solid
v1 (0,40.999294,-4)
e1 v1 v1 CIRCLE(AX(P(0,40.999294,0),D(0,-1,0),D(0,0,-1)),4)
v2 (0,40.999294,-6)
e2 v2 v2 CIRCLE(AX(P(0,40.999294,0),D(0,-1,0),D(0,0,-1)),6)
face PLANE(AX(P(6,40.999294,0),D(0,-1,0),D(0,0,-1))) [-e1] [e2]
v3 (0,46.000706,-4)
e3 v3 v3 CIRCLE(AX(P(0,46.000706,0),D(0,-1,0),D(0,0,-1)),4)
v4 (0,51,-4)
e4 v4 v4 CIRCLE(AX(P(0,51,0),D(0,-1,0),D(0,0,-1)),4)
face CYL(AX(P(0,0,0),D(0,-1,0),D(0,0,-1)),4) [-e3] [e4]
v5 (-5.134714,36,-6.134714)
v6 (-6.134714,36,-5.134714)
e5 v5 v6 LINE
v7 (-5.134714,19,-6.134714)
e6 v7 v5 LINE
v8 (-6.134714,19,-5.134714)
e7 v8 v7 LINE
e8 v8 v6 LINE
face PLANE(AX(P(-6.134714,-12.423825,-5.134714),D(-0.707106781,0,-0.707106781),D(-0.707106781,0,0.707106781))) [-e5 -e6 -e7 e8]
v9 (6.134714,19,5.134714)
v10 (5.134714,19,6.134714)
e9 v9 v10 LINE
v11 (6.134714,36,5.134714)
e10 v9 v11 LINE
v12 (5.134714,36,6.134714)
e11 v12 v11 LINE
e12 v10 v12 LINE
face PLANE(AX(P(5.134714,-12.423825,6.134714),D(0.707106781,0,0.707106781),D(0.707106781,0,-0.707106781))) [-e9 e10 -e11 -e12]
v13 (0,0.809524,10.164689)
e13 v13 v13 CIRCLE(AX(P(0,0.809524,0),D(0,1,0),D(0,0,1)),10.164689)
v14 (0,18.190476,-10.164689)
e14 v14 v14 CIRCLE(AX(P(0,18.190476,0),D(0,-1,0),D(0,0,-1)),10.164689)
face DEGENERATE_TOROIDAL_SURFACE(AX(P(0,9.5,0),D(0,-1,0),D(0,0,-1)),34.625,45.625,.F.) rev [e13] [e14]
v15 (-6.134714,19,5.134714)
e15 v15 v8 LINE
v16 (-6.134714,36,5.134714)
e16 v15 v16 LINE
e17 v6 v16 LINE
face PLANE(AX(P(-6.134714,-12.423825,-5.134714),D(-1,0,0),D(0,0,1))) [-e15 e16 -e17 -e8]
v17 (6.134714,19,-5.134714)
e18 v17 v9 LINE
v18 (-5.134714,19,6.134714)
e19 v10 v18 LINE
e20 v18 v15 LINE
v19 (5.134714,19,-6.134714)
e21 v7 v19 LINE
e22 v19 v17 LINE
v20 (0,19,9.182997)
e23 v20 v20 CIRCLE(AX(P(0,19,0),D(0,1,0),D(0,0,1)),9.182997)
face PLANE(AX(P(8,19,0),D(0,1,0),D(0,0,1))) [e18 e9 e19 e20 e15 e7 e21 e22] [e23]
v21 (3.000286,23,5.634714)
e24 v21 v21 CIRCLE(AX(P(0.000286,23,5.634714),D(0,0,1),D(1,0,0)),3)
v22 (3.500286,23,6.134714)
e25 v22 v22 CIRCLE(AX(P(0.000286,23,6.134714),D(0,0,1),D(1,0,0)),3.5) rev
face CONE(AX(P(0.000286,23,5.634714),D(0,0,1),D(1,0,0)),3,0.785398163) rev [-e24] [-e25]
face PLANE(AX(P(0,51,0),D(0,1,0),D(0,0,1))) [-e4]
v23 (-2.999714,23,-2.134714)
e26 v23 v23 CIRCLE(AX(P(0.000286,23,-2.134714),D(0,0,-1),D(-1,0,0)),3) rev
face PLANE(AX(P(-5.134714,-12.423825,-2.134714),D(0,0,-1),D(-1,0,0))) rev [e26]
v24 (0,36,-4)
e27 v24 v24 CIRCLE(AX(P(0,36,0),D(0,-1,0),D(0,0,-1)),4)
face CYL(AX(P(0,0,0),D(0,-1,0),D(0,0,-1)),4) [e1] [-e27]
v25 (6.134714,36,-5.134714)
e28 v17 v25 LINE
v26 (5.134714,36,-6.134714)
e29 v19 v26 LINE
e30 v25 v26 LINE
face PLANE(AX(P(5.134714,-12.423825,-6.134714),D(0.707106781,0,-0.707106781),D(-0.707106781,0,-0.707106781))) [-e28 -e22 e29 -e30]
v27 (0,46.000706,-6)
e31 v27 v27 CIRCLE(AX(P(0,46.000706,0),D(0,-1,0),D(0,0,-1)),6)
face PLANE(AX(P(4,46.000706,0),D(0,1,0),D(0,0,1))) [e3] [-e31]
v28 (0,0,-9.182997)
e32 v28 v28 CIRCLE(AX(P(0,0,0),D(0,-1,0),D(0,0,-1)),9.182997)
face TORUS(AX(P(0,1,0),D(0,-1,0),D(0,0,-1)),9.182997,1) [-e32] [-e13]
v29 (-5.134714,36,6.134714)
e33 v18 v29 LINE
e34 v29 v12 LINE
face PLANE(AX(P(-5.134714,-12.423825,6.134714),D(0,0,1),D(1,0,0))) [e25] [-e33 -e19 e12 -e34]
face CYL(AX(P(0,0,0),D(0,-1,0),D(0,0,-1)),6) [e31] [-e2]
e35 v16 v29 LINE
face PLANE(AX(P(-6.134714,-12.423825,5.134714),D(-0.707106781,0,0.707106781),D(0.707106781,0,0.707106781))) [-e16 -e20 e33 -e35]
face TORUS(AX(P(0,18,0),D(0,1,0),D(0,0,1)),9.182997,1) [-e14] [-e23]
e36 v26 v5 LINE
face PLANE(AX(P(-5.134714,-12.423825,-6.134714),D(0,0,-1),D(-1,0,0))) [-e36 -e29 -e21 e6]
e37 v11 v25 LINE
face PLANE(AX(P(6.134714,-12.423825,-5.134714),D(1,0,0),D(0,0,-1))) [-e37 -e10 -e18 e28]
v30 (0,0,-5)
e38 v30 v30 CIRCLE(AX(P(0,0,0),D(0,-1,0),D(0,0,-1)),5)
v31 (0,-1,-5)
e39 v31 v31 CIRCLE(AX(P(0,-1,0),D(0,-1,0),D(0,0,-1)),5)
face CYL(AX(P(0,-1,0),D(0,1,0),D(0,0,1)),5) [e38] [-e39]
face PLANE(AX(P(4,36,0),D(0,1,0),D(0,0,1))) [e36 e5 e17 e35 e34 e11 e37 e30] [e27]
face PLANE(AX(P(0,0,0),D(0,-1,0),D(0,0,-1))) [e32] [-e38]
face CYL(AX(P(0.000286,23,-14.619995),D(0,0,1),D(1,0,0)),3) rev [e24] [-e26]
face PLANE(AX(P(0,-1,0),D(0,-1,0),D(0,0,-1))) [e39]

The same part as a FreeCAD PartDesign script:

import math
import FreeCAD as App
import Part
import Sketcher
from FreeCAD import Vector


def edges_at(feature, points):
    """Names of the edges that pass closest to the given points."""
    edges = feature.Shape.Edges
    near = lambda p: min(range(len(edges)), key=lambda i: edges[i].distToShape(Part.Vertex(*p))[0])
    return sorted({f"Edge{near(p) + 1}" for p in points})


def add_polygon(sketch, points):
    """Adds a closed chain of lines whose ends are joined by coincident constraints."""
    first, n = sketch.GeometryCount, len(points)
    for a, b in zip(points, points[1:] + points[:1]):
        sketch.addGeometry(Part.LineSegment(App.Vector(*a, 0), App.Vector(*b, 0)), False)
    for i in range(n):
        sketch.addConstraint(Sketcher.Constraint("Coincident", first + i, 2, first + (i + 1) % n, 1))

doc = App.newDocument("Part")
body = doc.addObject("PartDesign::Body", "Body")

# Sketch on XY plane
sketch1 = body.newObject("Sketcher::SketchObject", "Sketch")
sketch1.AttachmentSupport = (doc.getObject("XY_Plane"), [""])
sketch1.MapMode = "FlatFace"
sketch1.addGeometry([
    Part.LineSegment(Vector(0, 51, 0), Vector(0, 0, 0)),  # 0
    Part.LineSegment(Vector(0, 0, 0), Vector(10, 0, 0)),  # 1
    Part.ArcOfCircle(Part.Circle(Vector(-34.6, 9.5, 0), Vector(0, 0, 1), 45.6), math.radians(-12), math.radians(12)),  # 2
    Part.LineSegment(Vector(10, 19, 0), Vector(8, 19, 0)),  # 3
    Part.LineSegment(Vector(8, 19, 0), Vector(8, 36, 0)),  # 4
    Part.LineSegment(Vector(8, 36, 0), Vector(4, 36, 0)),  # 5
    Part.LineSegment(Vector(4, 36, 0), Vector(4, 41, 0)),  # 6
    Part.LineSegment(Vector(4, 41, 0), Vector(6, 41, 0)),  # 7
    Part.LineSegment(Vector(6, 41, 0), Vector(6, 46, 0)),  # 8
    Part.LineSegment(Vector(6, 46, 0), Vector(4, 46, 0)),  # 9
    Part.LineSegment(Vector(4, 46, 0), Vector(4, 51, 0)),  # 10
    Part.LineSegment(Vector(4, 51, 0), Vector(0, 51, 0)),  # 11
], False)
sketch1.addConstraint([
    Sketcher.Constraint("Coincident", 0, 2, 1, 1),
    Sketcher.Constraint("Coincident", 1, 2, 2, 1),
    Sketcher.Constraint("Coincident", 2, 2, 3, 1),
    Sketcher.Constraint("Coincident", 3, 2, 4, 1),
    Sketcher.Constraint("Coincident", 4, 2, 5, 1),
    Sketcher.Constraint("Coincident", 5, 2, 6, 1),
    Sketcher.Constraint("Coincident", 6, 2, 7, 1),
    Sketcher.Constraint("Coincident", 7, 2, 8, 1),
    Sketcher.Constraint("Coincident", 8, 2, 9, 1),
    Sketcher.Constraint("Coincident", 9, 2, 10, 1),
    Sketcher.Constraint("Coincident", 10, 2, 11, 1),
    Sketcher.Constraint("Coincident", 11, 2, 0, 1),
    Sketcher.Constraint("Vertical", 0),
    Sketcher.Constraint("Horizontal", 1),
    Sketcher.Constraint("Horizontal", 3),
    Sketcher.Constraint("Vertical", 4),
    Sketcher.Constraint("Horizontal", 5),
    Sketcher.Constraint("Vertical", 6),
    Sketcher.Constraint("Horizontal", 7),
    Sketcher.Constraint("Vertical", 8),
    Sketcher.Constraint("Horizontal", 9),
    Sketcher.Constraint("Vertical", 10),
    Sketcher.Constraint("Horizontal", 11),
    Sketcher.Constraint("Coincident", 0, 2, -1, 1),
    Sketcher.Constraint("Vertical", 1, 2, 2, 2),
    Sketcher.Constraint("Vertical", 6, 2, 9, 2),
    Sketcher.Constraint("Equal", 3, 7),
    Sketcher.Constraint("Equal", 5, 11),
    Sketcher.Constraint("Equal", 6, 10),
    Sketcher.Constraint("DistanceX", 1, 1, 1, 2, 10.0),
    Sketcher.Constraint("DistanceX", 3, 2, 3, 1, 2.0),
    Sketcher.Constraint("DistanceY", 0, 2, 0, 1, 51.0),
    Sketcher.Constraint("DistanceY", 4, 1, 4, 2, 17.0),
    Sketcher.Constraint("DistanceY", -1, 1, 2, 2, 19.0),
    Sketcher.Constraint("Radius", 2, 45.625),
    Sketcher.Constraint("DistanceY", 6, 1, 6, 2, 4.999294),
])
revolution = body.newObject("PartDesign::Revolution", "Revolution")
revolution.Profile = sketch1
revolution.ReferenceAxis = (sketch1, ["V_Axis"])
revolution.Angle = 360

# Sketch on XZ plane
sketch2 = body.newObject("Sketcher::SketchObject", "Sketch001")
sketch2.AttachmentSupport = (doc.getObject("XZ_Plane"), [""])
sketch2.MapMode = "FlatFace"
sketch2.AttachmentOffset = App.Placement(Vector(0, 0, -36), App.Rotation())
add_polygon(sketch2, [(-18, -18), (-18, 18), (18, 18), (18, -18)])  # lines 0-3
add_polygon(sketch2, [(-6.1, 5.1), (-6.1, -5.1), (-5.1, -6.1), (5.1, -6.1), (6.1, -5.1), (6.1, 5.1), (5.1, 6.1), (-5.1, 6.1)])  # lines 4-11
sketch2.addConstraint([
    Sketcher.Constraint("Vertical", 0),
    Sketcher.Constraint("Horizontal", 1),
    Sketcher.Constraint("Vertical", 2),
    Sketcher.Constraint("Horizontal", 3),
    Sketcher.Constraint("Vertical", 4),
    Sketcher.Constraint("Horizontal", 6),
    Sketcher.Constraint("Vertical", 8),
    Sketcher.Constraint("Horizontal", 10),
    Sketcher.Constraint("Symmetric", 0, 2, 2, 2, -1, 1),
    Sketcher.Constraint("Symmetric", 4, 2, 8, 2, -1, 1),
    Sketcher.Constraint("Symmetric", 5, 2, 9, 2, -1, 1),
    Sketcher.Constraint("Perpendicular", 5, 7),
    Sketcher.Constraint("Perpendicular", 9, 11),
    Sketcher.Constraint("Horizontal", 4, 2, 7, 2),
    Sketcher.Constraint("Horizontal", 8, 2, 11, 2),
    Sketcher.Constraint("Vertical", 6, 2, 9, 2),
    Sketcher.Constraint("Equal", 3, 0),
    Sketcher.Constraint("Equal", 10, 4),
    Sketcher.Constraint("DistanceX", 4, 2, 5, 2, 1.0),
    Sketcher.Constraint("DistanceX", 1, 1, 1, 2, 35.948),
    Sketcher.Constraint("DistanceX", 6, 1, 6, 2, 10.269428),
])
pocket1 = body.newObject("PartDesign::Pocket", "Pocket")
pocket1.Profile = sketch2
pocket1.Length = 17
pocket1.Reversed = True

# Sketch on XY plane
sketch3 = body.newObject("Sketcher::SketchObject", "Sketch002")
sketch3.AttachmentSupport = (doc.getObject("XY_Plane"), [""])
sketch3.MapMode = "FlatFace"
sketch3.AttachmentOffset = App.Placement(Vector(0, 0, 6.134714), App.Rotation())
sketch3.addGeometry(Part.Circle(Vector(0, 23, 0), Vector(0, 0, 1), 3), False)
sketch3.addConstraint([
    Sketcher.Constraint("Diameter", 0, 6.0),
    Sketcher.Constraint("DistanceY", -1, 1, 0, 3, 23.0),
    Sketcher.Constraint("DistanceX", -1, 1, 0, 3, 0.000286),
])
pocket2 = body.newObject("PartDesign::Pocket", "Pocket001")
pocket2.Profile = sketch3
pocket2.Length = 8.269428
doc.recompute()

chamfer = body.newObject("PartDesign::Chamfer", "Chamfer")
chamfer.Base = (pocket2, edges_at(pocket2, [(-3, 23, 6.135)]))
chamfer.Size = 0.5

# Sketch on XZ plane
sketch4 = body.newObject("Sketcher::SketchObject", "Sketch003")
sketch4.AttachmentSupport = (doc.getObject("XZ_Plane"), [""])
sketch4.MapMode = "FlatFace"
sketch4.addGeometry(Part.Circle(Vector(0, 0, 0), Vector(0, 0, 1), 5), False)
sketch4.addConstraint([
    Sketcher.Constraint("Coincident", 0, 3, -1, 1),
    Sketcher.Constraint("Diameter", 0, 10.0),
])
pad1 = body.newObject("PartDesign::Pad", "Pad")
pad1.Profile = sketch4
pad1.Length = 1
doc.recompute()

fillet = body.newObject("PartDesign::Fillet", "Fillet")
fillet.Base = (pad1, edges_at(pad1, [(-10, 0, 0), (-10, 19, 0)]))
fillet.Radius = 1

doc.recompute()
